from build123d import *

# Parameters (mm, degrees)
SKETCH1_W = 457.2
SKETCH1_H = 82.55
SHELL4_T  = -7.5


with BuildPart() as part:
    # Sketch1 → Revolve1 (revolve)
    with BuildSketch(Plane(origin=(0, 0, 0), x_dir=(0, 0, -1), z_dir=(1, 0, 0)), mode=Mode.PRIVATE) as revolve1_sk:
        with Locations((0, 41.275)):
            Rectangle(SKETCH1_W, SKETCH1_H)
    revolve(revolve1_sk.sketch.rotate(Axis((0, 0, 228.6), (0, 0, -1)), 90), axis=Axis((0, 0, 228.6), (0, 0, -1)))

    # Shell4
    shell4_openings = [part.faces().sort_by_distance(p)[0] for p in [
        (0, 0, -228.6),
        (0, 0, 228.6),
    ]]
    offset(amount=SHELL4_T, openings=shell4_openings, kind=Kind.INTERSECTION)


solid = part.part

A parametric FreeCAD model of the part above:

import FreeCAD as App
import Part
import Sketcher
Q = App.Units.Quantity


def faces_at(feature, points):
    """Names of the faces that lie closest to the given points."""
    faces = feature.Shape.Faces
    near = lambda p: min(range(len(faces)), key=lambda i: faces[i].distToShape(Part.Vertex(*p))[0])
    return sorted({f"Face{near(p) + 1}" for p in points})

doc = App.newDocument("Part")
params = doc.addObject("Spreadsheet::Sheet", "Params")
for row, (alias, value) in enumerate([
    ("sketch1_height", "18 in"),
    ("sketch1_width", "3.25 in"),
    ("revolution_angle", "360 deg"),
    ("thickness_wall", "7.5 mm"),
], start=1):
    params.set(f"A{row}", alias)
    params.set(f"B{row}", "=" + value)
    params.setAlias(f"B{row}", alias)

body = doc.addObject("PartDesign::Body", "Body")

# Sketch on YZ plane
sketch1 = body.newObject("Sketcher::SketchObject", "Sketch")
sketch1.AttachmentSupport = (doc.getObject("YZ_Plane"), [""])
sketch1.MapMode = "FlatFace"
sketch1.addGeometry([
    Part.LineSegment(App.Vector(83, 229, 0), App.Vector(0, 229, 0)),
    Part.LineSegment(App.Vector(0, 229, 0), App.Vector(0, -229, 0)),
    Part.LineSegment(App.Vector(0, -229, 0), App.Vector(83, -229, 0)),
    Part.LineSegment(App.Vector(83, -229, 0), App.Vector(83, 229, 0)),
], False)
sketch1.addConstraint([
    Sketcher.Constraint("Coincident", 0, 2, 1, 1),
    Sketcher.Constraint("Coincident", 1, 2, 2, 1),
    Sketcher.Constraint("Coincident", 2, 2, 3, 1),
    Sketcher.Constraint("Coincident", 3, 2, 0, 1),
    Sketcher.Constraint("Horizontal", 0),
    Sketcher.Constraint("Vertical", 1),
    Sketcher.Constraint("Horizontal", 2),
    Sketcher.Constraint("Vertical", 3),
    Sketcher.Constraint("Symmetric", 0, 2, 1, 2, -1, 1),
    Sketcher.Constraint("DistanceY", 1, 2, 1, 1, Q("18 in")),
    Sketcher.Constraint("DistanceX", 0, 2, 0, 1, Q("3.25 in")),
])
sketch1.setExpression("Constraints[9]", "Params.sketch1_height")
sketch1.setExpression("Constraints[10]", "Params.sketch1_width")
revolution = body.newObject("PartDesign::Revolution", "Revolution")
revolution.Profile = sketch1
revolution.ReferenceAxis = (sketch1, ["V_Axis"])
revolution.setExpression("Angle", "Params.revolution_angle")
doc.recompute()

thickness = body.newObject("PartDesign::Thickness", "Thickness")
thickness.Base = (revolution, faces_at(revolution, [(0, 0, -228.6), (0, 0, 228.6)]))
thickness.setExpression("Value", "Params.thickness_wall")
thickness.Reversed = True
thickness.Join = "Intersection"

doc.recompute()
